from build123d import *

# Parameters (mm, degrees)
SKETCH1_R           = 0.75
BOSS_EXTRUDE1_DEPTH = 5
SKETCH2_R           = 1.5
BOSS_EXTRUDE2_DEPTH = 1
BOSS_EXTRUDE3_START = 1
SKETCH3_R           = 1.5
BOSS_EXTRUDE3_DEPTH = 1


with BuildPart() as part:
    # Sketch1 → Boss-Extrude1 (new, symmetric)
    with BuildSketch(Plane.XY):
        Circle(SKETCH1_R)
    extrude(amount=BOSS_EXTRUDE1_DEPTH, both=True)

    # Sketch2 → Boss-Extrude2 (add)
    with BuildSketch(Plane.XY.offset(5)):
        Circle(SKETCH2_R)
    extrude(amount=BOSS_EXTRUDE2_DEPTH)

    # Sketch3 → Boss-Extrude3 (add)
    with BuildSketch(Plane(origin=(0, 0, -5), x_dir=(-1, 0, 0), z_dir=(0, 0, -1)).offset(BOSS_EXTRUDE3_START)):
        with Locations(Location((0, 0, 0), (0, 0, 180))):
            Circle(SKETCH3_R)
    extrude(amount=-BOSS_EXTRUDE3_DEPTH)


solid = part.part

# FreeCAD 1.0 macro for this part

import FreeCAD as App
import Part
import Sketcher

V = App.Vector
Q = App.Units.Quantity

doc = App.newDocument("Part")
params = doc.addObject("Spreadsheet::Sheet", "Params")
for row, (alias, value) in enumerate([
    ("sketch1_diameter", "1.5 mm"),
    ("pad1_length", "10 mm"),
    ("sketch2_diameter", "3 mm"),
    ("pad2_length", "1 mm"),
    ("sketch3_diameter", "3 mm"),
    ("pad3_length", "1 mm"),
], start=1):
    params.set(f"A{row}", alias)
    params.set(f"B{row}", "=" + value)
    params.setAlias(f"B{row}", alias)

body = doc.addObject("PartDesign::Body", "Body")

# Sketch on XY plane
sketch1 = body.newObject("Sketcher::SketchObject", "Sketch")
sketch1.AttachmentSupport = (doc.getObject("XY_Plane"), [""])
sketch1.MapMode = "FlatFace"
sketch1.addGeometry(Part.Circle(V(0, 0, 0), V(0, 0, 1), 0.8), False)
sketch1.addConstraint(Sketcher.Constraint("Coincident", 0, 3, -1, 1))
sketch1.addConstraint(Sketcher.Constraint("Diameter", 0, Q("1.5 mm")))
sketch1.setExpression("Constraints[1]", "Params.sketch1_diameter")
pad1 = body.newObject("PartDesign::Pad", "Pad")
pad1.Profile = sketch1
pad1.setExpression("Length", "Params.pad1_length")
pad1.Midplane = True

# Sketch on XY plane
sketch2 = body.newObject("Sketcher::SketchObject", "Sketch001")
sketch2.AttachmentSupport = (doc.getObject("XY_Plane"), [""])
sketch2.MapMode = "FlatFace"
sketch2.AttachmentOffset = App.Placement(V(0, 0, 5), App.Rotation())
sketch2.addGeometry(Part.Circle(V(0, 0, 0), V(0, 0, 1), 1.5), False)
sketch2.addConstraint(Sketcher.Constraint("Coincident", 0, 3, -1, 1))
sketch2.addConstraint(Sketcher.Constraint("Diameter", 0, Q("3 mm")))
sketch2.setExpression("Constraints[1]", "Params.sketch2_diameter")
pad2 = body.newObject("PartDesign::Pad", "Pad001")
pad2.Profile = sketch2
pad2.setExpression("Length", "Params.pad2_length")

# Sketch on XY plane
sketch3 = body.newObject("Sketcher::SketchObject", "Sketch002")
sketch3.AttachmentSupport = (doc.getObject("XY_Plane"), [""])
sketch3.MapMode = "FlatFace"
sketch3.AttachmentOffset = App.Placement(V(0, 0, -6), App.Rotation())
sketch3.addGeometry(Part.Circle(V(0, 0, 0), V(0, 0, 1), 1.5), False)
sketch3.addConstraint(Sketcher.Constraint("Coincident", 0, 3, -1, 1))
sketch3.addConstraint(Sketcher.Constraint("Diameter", 0, Q("3 mm")))
sketch3.setExpression("Constraints[1]", "Params.sketch3_diameter")
pad3 = body.newObject("PartDesign::Pad", "Pad002")
pad3.Profile = sketch3
pad3.setExpression("Length", "Params.pad3_length")

doc.recompute()
